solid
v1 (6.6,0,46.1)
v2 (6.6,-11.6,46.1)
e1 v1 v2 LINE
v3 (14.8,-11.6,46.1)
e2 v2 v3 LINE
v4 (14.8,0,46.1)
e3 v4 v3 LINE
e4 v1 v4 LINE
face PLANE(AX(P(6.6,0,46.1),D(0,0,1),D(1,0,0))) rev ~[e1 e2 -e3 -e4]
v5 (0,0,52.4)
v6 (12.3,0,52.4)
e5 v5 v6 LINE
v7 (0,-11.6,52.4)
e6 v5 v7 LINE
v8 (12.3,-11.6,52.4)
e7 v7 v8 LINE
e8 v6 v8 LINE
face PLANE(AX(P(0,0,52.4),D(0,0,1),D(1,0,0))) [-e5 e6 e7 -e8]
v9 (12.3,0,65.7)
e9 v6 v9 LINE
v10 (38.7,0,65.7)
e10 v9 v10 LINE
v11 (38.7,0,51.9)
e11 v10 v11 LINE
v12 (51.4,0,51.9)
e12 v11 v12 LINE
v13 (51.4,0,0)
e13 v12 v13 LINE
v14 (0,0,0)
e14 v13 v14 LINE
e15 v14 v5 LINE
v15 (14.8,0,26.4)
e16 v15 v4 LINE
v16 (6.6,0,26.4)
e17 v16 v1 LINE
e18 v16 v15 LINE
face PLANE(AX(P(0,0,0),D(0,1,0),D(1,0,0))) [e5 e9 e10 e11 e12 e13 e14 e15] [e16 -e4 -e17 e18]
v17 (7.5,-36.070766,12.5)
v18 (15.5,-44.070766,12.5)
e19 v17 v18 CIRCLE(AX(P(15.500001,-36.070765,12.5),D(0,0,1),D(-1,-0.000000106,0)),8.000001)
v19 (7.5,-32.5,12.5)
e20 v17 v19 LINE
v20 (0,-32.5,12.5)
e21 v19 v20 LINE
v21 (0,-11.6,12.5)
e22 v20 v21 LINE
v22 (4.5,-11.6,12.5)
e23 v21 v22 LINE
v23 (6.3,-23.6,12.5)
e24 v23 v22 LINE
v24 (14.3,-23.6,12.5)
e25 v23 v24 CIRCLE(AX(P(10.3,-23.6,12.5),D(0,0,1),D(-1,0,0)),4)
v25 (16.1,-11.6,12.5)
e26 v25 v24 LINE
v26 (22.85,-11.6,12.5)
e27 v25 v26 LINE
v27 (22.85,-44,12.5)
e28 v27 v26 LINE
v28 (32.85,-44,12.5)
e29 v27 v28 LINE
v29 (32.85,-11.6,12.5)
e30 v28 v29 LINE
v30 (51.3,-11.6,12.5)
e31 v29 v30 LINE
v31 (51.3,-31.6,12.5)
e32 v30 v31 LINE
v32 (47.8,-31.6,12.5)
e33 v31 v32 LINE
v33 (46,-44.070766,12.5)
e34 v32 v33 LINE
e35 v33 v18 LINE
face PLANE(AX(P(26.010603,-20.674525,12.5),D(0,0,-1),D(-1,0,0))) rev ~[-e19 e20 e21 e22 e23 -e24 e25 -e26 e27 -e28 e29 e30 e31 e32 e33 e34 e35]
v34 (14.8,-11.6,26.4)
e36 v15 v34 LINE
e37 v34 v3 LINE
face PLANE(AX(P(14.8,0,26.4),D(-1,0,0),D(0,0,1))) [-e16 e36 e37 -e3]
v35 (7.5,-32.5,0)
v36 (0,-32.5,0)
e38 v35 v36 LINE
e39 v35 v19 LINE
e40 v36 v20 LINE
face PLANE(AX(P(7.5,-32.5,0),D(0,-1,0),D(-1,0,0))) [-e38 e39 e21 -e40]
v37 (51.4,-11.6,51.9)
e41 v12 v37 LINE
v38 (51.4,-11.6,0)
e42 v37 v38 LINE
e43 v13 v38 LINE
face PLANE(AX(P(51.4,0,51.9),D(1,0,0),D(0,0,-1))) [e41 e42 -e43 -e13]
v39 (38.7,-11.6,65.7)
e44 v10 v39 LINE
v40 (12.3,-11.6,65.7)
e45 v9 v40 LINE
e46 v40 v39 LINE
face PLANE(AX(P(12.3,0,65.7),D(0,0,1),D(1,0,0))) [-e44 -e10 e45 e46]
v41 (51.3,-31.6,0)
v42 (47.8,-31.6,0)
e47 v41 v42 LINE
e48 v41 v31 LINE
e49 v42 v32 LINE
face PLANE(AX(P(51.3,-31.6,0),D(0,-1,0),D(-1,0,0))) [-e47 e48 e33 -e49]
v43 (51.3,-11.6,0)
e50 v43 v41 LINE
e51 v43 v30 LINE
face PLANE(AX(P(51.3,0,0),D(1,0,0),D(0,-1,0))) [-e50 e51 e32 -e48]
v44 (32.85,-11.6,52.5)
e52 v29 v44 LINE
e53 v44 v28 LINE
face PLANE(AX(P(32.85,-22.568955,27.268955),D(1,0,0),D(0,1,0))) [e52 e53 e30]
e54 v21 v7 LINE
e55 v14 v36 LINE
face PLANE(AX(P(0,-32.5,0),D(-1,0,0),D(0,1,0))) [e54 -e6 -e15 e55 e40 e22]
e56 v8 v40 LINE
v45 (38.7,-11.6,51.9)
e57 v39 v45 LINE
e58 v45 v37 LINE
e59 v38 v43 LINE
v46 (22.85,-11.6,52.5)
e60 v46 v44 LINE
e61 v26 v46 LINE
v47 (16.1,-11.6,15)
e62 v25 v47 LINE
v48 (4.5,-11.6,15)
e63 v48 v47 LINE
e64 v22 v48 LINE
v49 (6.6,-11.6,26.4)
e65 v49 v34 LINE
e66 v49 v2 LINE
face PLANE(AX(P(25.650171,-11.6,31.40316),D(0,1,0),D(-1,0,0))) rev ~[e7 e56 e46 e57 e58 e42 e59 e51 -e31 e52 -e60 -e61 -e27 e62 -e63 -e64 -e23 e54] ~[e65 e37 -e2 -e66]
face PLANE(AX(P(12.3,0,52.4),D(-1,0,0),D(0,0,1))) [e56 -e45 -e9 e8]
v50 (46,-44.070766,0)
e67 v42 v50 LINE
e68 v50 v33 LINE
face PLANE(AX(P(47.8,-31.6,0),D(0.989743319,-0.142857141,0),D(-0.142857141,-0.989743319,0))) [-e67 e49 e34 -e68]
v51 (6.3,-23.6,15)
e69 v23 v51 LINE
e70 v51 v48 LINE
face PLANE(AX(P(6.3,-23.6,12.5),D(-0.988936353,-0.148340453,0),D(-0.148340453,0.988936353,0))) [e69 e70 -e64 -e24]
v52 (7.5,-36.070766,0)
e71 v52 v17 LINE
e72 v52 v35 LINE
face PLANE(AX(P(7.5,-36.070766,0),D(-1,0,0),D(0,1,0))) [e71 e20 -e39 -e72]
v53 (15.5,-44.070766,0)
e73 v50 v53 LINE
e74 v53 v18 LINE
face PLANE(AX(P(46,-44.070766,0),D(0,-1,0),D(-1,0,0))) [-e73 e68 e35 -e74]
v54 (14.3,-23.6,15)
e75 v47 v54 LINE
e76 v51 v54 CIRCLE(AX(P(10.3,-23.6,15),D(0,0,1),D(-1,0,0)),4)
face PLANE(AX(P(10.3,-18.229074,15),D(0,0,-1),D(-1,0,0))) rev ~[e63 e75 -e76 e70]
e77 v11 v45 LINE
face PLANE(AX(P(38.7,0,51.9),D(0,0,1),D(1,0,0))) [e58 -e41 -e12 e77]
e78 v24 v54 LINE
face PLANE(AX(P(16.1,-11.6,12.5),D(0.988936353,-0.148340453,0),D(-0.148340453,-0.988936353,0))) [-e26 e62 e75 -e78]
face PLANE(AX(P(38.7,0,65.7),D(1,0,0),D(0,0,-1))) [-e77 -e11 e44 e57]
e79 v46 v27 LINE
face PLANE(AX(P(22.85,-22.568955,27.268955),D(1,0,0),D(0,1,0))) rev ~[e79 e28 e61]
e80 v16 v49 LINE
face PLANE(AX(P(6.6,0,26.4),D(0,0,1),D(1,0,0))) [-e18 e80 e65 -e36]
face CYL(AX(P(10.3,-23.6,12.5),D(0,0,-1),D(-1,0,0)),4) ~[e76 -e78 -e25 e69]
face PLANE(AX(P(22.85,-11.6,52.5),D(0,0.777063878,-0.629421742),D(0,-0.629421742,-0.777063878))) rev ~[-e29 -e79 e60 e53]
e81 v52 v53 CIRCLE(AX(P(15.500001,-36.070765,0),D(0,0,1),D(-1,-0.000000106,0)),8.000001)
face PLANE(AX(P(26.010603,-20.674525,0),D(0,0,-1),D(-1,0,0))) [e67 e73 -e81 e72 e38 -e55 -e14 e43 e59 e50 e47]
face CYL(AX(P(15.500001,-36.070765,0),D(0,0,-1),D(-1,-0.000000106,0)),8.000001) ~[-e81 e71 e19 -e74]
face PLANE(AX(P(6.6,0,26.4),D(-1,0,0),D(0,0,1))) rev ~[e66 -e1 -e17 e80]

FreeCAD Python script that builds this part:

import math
import FreeCAD as App
import Part
import Sketcher
from FreeCAD import Vector
Q = App.Units.Quantity

doc = App.newDocument("Part")
body = doc.addObject("PartDesign::Body", "Body")

# Sketch on YZ plane
sketch1 = body.newObject("Sketcher::SketchObject", "Sketch")
sketch1.AttachmentSupport = (doc.getObject("YZ_Plane"), [""])
sketch1.MapMode = "FlatFace"
sketch1.AttachmentOffset = App.Placement(Vector(0, 0, 22.85), App.Rotation())
sketch1.addGeometry([
    Part.LineSegment(Vector(-44, 12.5, 0), Vector(-11.6, 12.5, 0)),
    Part.LineSegment(Vector(-11.6, 12.5, 0), Vector(-11.6, 52.5, 0)),
    Part.LineSegment(Vector(-11.6, 52.5, 0), Vector(-44, 12.5, 0)),
], False)
sketch1.addConstraint([
    Sketcher.Constraint("Coincident", 0, 2, 1, 1),
    Sketcher.Constraint("Coincident", 1, 2, 2, 1),
    Sketcher.Constraint("Coincident", 2, 2, 0, 1),
    Sketcher.Constraint("Horizontal", 0),
    Sketcher.Constraint("Vertical", 1),
    Sketcher.Constraint("DistanceY", 1, 1, 1, 2, Q("40 mm")),
    Sketcher.Constraint("DistanceX", 0, 1, 0, 2, Q("32.4 mm")),
    Sketcher.Constraint("DistanceX", 2, 2, -1, 1, Q("44 mm")),
    Sketcher.Constraint("DistanceY", -1, 1, 0, 2, Q("12.5 mm")),
])
pad1 = body.newObject("PartDesign::Pad", "Pad")
pad1.Profile = sketch1
pad1.Length = 10
body2 = doc.addObject("PartDesign::Body", "Body001")

# Sketch on XZ plane
sketch2 = body2.newObject("Sketcher::SketchObject", "Sketch001")
sketch2.AttachmentSupport = (doc.getObject("XZ_Plane001"), [""])
sketch2.MapMode = "FlatFace"
sketch2.addGeometry([
    Part.LineSegment(Vector(0, 52.4, 0), Vector(0, 0, 0)),  # 0
    Part.LineSegment(Vector(0, 0, 0), Vector(51.4, 0, 0)),  # 1
    Part.LineSegment(Vector(51.4, 0, 0), Vector(51.4, 51.9, 0)),  # 2
    Part.LineSegment(Vector(51.4, 51.9, 0), Vector(38.7, 51.9, 0)),  # 3
    Part.LineSegment(Vector(38.7, 51.9, 0), Vector(38.7, 65.7, 0)),  # 4
    Part.LineSegment(Vector(38.7, 65.7, 0), Vector(12.3, 65.7, 0)),  # 5
    Part.LineSegment(Vector(12.3, 65.7, 0), Vector(12.3, 52.4, 0)),  # 6
    Part.LineSegment(Vector(12.3, 52.4, 0), Vector(0, 52.4, 0)),  # 7
    Part.LineSegment(Vector(6.6, 26.4, 0), Vector(6.6, 46.1, 0)),  # 8
    Part.LineSegment(Vector(6.6, 46.1, 0), Vector(14.8, 46.1, 0)),  # 9
    Part.LineSegment(Vector(14.8, 46.1, 0), Vector(14.8, 26.4, 0)),  # 10
    Part.LineSegment(Vector(14.8, 26.4, 0), Vector(6.6, 26.4, 0)),  # 11
], False)
sketch2.addConstraint([
    Sketcher.Constraint("Coincident", 0, 2, 1, 1),
    Sketcher.Constraint("Coincident", 1, 2, 2, 1),
    Sketcher.Constraint("Coincident", 2, 2, 3, 1),
    Sketcher.Constraint("Coincident", 3, 2, 4, 1),
    Sketcher.Constraint("Coincident", 4, 2, 5, 1),
    Sketcher.Constraint("Coincident", 5, 2, 6, 1),
    Sketcher.Constraint("Coincident", 6, 2, 7, 1),
    Sketcher.Constraint("Coincident", 7, 2, 0, 1),
    Sketcher.Constraint("Coincident", 8, 2, 9, 1),
    Sketcher.Constraint("Coincident", 9, 2, 10, 1),
    Sketcher.Constraint("Coincident", 10, 2, 11, 1),
    Sketcher.Constraint("Coincident", 11, 2, 8, 1),
    Sketcher.Constraint("Vertical", 0),
    Sketcher.Constraint("Horizontal", 1),
    Sketcher.Constraint("Vertical", 2),
    Sketcher.Constraint("Horizontal", 3),
    Sketcher.Constraint("Vertical", 4),
    Sketcher.Constraint("Horizontal", 5),
    Sketcher.Constraint("Vertical", 6),
    Sketcher.Constraint("Horizontal", 7),
    Sketcher.Constraint("Vertical", 8),
    Sketcher.Constraint("Horizontal", 9),
    Sketcher.Constraint("Vertical", 10),
    Sketcher.Constraint("Horizontal", 11),
    Sketcher.Constraint("Coincident", 0, 2, -1, 1),
    Sketcher.Constraint("DistanceX", 1, 1, 1, 2, Q("51.4 mm")),
    Sketcher.Constraint("DistanceX", 3, 2, 3, 1, Q("12.7 mm")),
    Sketcher.Constraint("DistanceX", 5, 2, 5, 1, Q("26.4 mm")),
    Sketcher.Constraint("DistanceX", 9, 1, 9, 2, Q("8.2 mm")),
    Sketcher.Constraint("DistanceY", 0, 2, 0, 1, Q("52.4 mm")),
    Sketcher.Constraint("DistanceY", 2, 1, 2, 2, Q("51.9 mm")),
    Sketcher.Constraint("DistanceY", 4, 1, 4, 2, Q("13.8 mm")),
    Sketcher.Constraint("DistanceY", 8, 1, 8, 2, Q("19.7 mm")),
    Sketcher.Constraint("DistanceY", 10, 2, 6, 2, Q("26 mm")),
    Sketcher.Constraint("DistanceX", -1, 1, 8, 2, Q("6.6 mm")),
])
pad2 = body2.newObject("PartDesign::Pad", "Pad001")
pad2.Profile = sketch2
pad2.Length = 11.6
body3 = doc.addObject("PartDesign::Body", "Body002")

# Sketch on XY plane
sketch3 = body3.newObject("Sketcher::SketchObject", "Sketch002")
sketch3.AttachmentSupport = (doc.getObject("XY_Plane002"), [""])
sketch3.MapMode = "FlatFace"
sketch3.addGeometry([
    Part.LineSegment(Vector(51.3, 0, 0), Vector(0, 0, 0)),  # 0
    Part.LineSegment(Vector(0, 0, 0), Vector(0, -32.5, 0)),  # 1
    Part.LineSegment(Vector(0, -32.5, 0), Vector(7.5, -32.5, 0)),  # 2
    Part.LineSegment(Vector(7.5, -32.5, 0), Vector(7.5, -36.070766, 0)),  # 3
    Part.ArcOfCircle(Part.Circle(Vector(15.500001, -36.070765, 0), Vector(0, 0, 1), 8.000001), math.radians(-179.999994), math.radians(-90.000006)),  # 4
    Part.LineSegment(Vector(15.5, -44.070766, 0), Vector(46, -44.070766, 0)),  # 5
    Part.LineSegment(Vector(46, -44.070766, 0), Vector(47.8, -31.6, 0)),  # 6
    Part.LineSegment(Vector(47.8, -31.6, 0), Vector(51.3, -31.6, 0)),  # 7
    Part.LineSegment(Vector(51.3, -31.6, 0), Vector(51.3, 0, 0)),  # 8
], False)
sketch3.addConstraint([
    Sketcher.Constraint("Coincident", 0, 2, 1, 1),
    Sketcher.Constraint("Coincident", 1, 2, 2, 1),
    Sketcher.Constraint("Coincident", 2, 2, 3, 1),
    Sketcher.Constraint("Tangent", 3, 2, 4, 1),
    Sketcher.Constraint("Tangent", 4, 2, 5, 1),
    Sketcher.Constraint("Coincident", 5, 2, 6, 1),
    Sketcher.Constraint("Coincident", 6, 2, 7, 1),
    Sketcher.Constraint("Coincident", 7, 2, 8, 1),
    Sketcher.Constraint("Coincident", 8, 2, 0, 1),
    Sketcher.Constraint("Horizontal", 0),
    Sketcher.Constraint("Vertical", 1),
    Sketcher.Constraint("Horizontal", 2),
    Sketcher.Constraint("Vertical", 3),
    Sketcher.Constraint("Horizontal", 5),
    Sketcher.Constraint("Horizontal", 7),
    Sketcher.Constraint("Vertical", 8),
    Sketcher.Constraint("Coincident", 0, 2, -1, 1),
    Sketcher.Constraint("Radius", 4, Q("8.000001 mm")),
    Sketcher.Constraint("DistanceX", 0, 2, 0, 1, Q("51.3 mm")),
    Sketcher.Constraint("DistanceX", 2, 1, 2, 2, Q("7.5 mm")),
    Sketcher.Constraint("DistanceX", 5, 1, 5, 2, Q("30.5 mm")),
    Sketcher.Constraint("DistanceX", 7, 1, 7, 2, Q("3.5 mm")),
    Sketcher.Constraint("DistanceY", 1, 2, 1, 1, Q("32.5 mm")),
    Sketcher.Constraint("DistanceY", 8, 1, 8, 2, Q("31.6 mm")),
    Sketcher.Constraint("Distance", 6, Q("12.6 mm")),
])
pad3 = body3.newObject("PartDesign::Pad", "Pad002")
pad3.Profile = sketch3
pad3.Length = 12.5

# Sketch on XY plane
sketch4 = body3.newObject("Sketcher::SketchObject", "Sketch003")
sketch4.AttachmentSupport = (doc.getObject("XY_Plane002"), [""])
sketch4.MapMode = "FlatFace"
sketch4.AttachmentOffset = App.Placement(Vector(0, 0, 12.5), App.Rotation())
sketch4.addGeometry([
    Part.LineSegment(Vector(16.1, -11.6, 0), Vector(4.5, -11.6, 0)),
    Part.LineSegment(Vector(4.5, -11.6, 0), Vector(6.3, -23.6, 0)),
    Part.ArcOfCircle(Part.Circle(Vector(10.3, -23.6, 0), Vector(0, 0, 1), 4), math.radians(180), math.radians(360)),
    Part.LineSegment(Vector(14.3, -23.6, 0), Vector(16.1, -11.6, 0)),
], False)
sketch4.addConstraint([
    Sketcher.Constraint("Coincident", 0, 2, 1, 1),
    Sketcher.Constraint("Coincident", 1, 2, 2, 1),
    Sketcher.Constraint("Coincident", 2, 2, 3, 1),
    Sketcher.Constraint("Coincident", 3, 2, 0, 1),
    Sketcher.Constraint("Horizontal", 0),
    Sketcher.Constraint("Horizontal", 2, 3, 1, 2),
    Sketcher.Constraint("Horizontal", 1, 2, 2, 2),
    Sketcher.Constraint("Equal", 1, 3),
    Sketcher.Constraint("Radius", 2, Q("4 mm")),
    Sketcher.Constraint("DistanceX", 0, 2, 0, 1, Q("11.6 mm")),
    Sketcher.Constraint("DistanceY", 2, 3, 0, 2, Q("12 mm")),
    Sketcher.Constraint("DistanceX", -1, 1, 2, 3, Q("10.3 mm")),
    Sketcher.Constraint("DistanceY", 2, 3, -1, 1, Q("23.6 mm")),
])
pad4 = body3.newObject("PartDesign::Pad", "Pad003")
pad4.Profile = sketch4
pad4.Length = 2.5
doc.recompute()

boolean = body3.newObject("PartDesign::Boolean", "Boolean")
boolean.Type = "Fuse"
boolean.addObjects([body])
doc.recompute()

boolean2 = body3.newObject("PartDesign::Boolean", "Boolean001")
boolean2.Type = "Fuse"
boolean2.addObjects([body2])

doc.recompute()
